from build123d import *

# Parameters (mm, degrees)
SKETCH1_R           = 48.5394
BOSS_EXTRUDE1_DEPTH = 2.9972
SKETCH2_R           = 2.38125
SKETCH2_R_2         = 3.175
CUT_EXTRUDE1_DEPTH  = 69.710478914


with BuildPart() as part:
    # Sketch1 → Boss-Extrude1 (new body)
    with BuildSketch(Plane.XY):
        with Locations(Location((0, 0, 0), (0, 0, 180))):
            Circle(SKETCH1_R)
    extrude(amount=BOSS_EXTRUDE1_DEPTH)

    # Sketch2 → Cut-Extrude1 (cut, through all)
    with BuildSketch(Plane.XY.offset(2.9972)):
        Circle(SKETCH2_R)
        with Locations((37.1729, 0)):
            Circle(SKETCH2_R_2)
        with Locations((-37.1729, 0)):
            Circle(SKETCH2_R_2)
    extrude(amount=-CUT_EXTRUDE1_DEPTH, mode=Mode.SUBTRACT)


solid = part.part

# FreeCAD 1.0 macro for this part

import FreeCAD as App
import Part
import Sketcher

V = App.Vector
Q = App.Units.Quantity

doc = App.newDocument("Part")
body = doc.addObject("PartDesign::Body", "Body")

# Sketch on XY plane
sketch1 = body.newObject("Sketcher::SketchObject", "Sketch")
sketch1.AttachmentSupport = (doc.getObject("XY_Plane"), [""])
sketch1.MapMode = "FlatFace"
sketch1.addGeometry(Part.Circle(V(0, 0, 0), V(0, 0, 1), 49), False)
sketch1.addConstraint([
    Sketcher.Constraint("Coincident", 0, 3, -1, 1),
    Sketcher.Constraint("Diameter", 0, Q("3.822 in")),
])
pad1 = body.newObject("PartDesign::Pad", "Pad")
pad1.Profile = sketch1
pad1.Length = Q("0.118 in")

# Sketch on XY plane
sketch2 = body.newObject("Sketcher::SketchObject", "Sketch001")
sketch2.AttachmentSupport = (doc.getObject("XY_Plane"), [""])
sketch2.MapMode = "FlatFace"
sketch2.AttachmentOffset = App.Placement(V(0, 0, 0.118 * 25.4), App.Rotation())
sketch2.addGeometry([
    Part.Circle(V(0, 0, 0), V(0, 0, 1), 2.4),
    Part.Circle(V(37.2, 0, 0), V(0, 0, 1), 3.2),
    Part.Circle(V(-37.2, 0, 0), V(0, 0, 1), 3.2),
], False)
sketch2.addConstraint([
    Sketcher.Constraint("Coincident", 0, 3, -1, 1),
    Sketcher.Constraint("Equal", 1, 2),
    Sketcher.Constraint("Symmetric", 1, 3, 2, 3, -1, 1),
    Sketcher.Constraint("PointOnObject", 1, 3, -1),
    Sketcher.Constraint("Diameter", 1, Q("0.25 in")),
    Sketcher.Constraint("Diameter", 0, Q("0.1875 in")),
    Sketcher.Constraint("DistanceX", 2, 3, 1, 3, Q("2.927 in")),
])
pocket1 = body.newObject("PartDesign::Pocket", "Pocket")
pocket1.Profile = sketch2
pocket1.Type = "ThroughAll"

doc.recompute()
